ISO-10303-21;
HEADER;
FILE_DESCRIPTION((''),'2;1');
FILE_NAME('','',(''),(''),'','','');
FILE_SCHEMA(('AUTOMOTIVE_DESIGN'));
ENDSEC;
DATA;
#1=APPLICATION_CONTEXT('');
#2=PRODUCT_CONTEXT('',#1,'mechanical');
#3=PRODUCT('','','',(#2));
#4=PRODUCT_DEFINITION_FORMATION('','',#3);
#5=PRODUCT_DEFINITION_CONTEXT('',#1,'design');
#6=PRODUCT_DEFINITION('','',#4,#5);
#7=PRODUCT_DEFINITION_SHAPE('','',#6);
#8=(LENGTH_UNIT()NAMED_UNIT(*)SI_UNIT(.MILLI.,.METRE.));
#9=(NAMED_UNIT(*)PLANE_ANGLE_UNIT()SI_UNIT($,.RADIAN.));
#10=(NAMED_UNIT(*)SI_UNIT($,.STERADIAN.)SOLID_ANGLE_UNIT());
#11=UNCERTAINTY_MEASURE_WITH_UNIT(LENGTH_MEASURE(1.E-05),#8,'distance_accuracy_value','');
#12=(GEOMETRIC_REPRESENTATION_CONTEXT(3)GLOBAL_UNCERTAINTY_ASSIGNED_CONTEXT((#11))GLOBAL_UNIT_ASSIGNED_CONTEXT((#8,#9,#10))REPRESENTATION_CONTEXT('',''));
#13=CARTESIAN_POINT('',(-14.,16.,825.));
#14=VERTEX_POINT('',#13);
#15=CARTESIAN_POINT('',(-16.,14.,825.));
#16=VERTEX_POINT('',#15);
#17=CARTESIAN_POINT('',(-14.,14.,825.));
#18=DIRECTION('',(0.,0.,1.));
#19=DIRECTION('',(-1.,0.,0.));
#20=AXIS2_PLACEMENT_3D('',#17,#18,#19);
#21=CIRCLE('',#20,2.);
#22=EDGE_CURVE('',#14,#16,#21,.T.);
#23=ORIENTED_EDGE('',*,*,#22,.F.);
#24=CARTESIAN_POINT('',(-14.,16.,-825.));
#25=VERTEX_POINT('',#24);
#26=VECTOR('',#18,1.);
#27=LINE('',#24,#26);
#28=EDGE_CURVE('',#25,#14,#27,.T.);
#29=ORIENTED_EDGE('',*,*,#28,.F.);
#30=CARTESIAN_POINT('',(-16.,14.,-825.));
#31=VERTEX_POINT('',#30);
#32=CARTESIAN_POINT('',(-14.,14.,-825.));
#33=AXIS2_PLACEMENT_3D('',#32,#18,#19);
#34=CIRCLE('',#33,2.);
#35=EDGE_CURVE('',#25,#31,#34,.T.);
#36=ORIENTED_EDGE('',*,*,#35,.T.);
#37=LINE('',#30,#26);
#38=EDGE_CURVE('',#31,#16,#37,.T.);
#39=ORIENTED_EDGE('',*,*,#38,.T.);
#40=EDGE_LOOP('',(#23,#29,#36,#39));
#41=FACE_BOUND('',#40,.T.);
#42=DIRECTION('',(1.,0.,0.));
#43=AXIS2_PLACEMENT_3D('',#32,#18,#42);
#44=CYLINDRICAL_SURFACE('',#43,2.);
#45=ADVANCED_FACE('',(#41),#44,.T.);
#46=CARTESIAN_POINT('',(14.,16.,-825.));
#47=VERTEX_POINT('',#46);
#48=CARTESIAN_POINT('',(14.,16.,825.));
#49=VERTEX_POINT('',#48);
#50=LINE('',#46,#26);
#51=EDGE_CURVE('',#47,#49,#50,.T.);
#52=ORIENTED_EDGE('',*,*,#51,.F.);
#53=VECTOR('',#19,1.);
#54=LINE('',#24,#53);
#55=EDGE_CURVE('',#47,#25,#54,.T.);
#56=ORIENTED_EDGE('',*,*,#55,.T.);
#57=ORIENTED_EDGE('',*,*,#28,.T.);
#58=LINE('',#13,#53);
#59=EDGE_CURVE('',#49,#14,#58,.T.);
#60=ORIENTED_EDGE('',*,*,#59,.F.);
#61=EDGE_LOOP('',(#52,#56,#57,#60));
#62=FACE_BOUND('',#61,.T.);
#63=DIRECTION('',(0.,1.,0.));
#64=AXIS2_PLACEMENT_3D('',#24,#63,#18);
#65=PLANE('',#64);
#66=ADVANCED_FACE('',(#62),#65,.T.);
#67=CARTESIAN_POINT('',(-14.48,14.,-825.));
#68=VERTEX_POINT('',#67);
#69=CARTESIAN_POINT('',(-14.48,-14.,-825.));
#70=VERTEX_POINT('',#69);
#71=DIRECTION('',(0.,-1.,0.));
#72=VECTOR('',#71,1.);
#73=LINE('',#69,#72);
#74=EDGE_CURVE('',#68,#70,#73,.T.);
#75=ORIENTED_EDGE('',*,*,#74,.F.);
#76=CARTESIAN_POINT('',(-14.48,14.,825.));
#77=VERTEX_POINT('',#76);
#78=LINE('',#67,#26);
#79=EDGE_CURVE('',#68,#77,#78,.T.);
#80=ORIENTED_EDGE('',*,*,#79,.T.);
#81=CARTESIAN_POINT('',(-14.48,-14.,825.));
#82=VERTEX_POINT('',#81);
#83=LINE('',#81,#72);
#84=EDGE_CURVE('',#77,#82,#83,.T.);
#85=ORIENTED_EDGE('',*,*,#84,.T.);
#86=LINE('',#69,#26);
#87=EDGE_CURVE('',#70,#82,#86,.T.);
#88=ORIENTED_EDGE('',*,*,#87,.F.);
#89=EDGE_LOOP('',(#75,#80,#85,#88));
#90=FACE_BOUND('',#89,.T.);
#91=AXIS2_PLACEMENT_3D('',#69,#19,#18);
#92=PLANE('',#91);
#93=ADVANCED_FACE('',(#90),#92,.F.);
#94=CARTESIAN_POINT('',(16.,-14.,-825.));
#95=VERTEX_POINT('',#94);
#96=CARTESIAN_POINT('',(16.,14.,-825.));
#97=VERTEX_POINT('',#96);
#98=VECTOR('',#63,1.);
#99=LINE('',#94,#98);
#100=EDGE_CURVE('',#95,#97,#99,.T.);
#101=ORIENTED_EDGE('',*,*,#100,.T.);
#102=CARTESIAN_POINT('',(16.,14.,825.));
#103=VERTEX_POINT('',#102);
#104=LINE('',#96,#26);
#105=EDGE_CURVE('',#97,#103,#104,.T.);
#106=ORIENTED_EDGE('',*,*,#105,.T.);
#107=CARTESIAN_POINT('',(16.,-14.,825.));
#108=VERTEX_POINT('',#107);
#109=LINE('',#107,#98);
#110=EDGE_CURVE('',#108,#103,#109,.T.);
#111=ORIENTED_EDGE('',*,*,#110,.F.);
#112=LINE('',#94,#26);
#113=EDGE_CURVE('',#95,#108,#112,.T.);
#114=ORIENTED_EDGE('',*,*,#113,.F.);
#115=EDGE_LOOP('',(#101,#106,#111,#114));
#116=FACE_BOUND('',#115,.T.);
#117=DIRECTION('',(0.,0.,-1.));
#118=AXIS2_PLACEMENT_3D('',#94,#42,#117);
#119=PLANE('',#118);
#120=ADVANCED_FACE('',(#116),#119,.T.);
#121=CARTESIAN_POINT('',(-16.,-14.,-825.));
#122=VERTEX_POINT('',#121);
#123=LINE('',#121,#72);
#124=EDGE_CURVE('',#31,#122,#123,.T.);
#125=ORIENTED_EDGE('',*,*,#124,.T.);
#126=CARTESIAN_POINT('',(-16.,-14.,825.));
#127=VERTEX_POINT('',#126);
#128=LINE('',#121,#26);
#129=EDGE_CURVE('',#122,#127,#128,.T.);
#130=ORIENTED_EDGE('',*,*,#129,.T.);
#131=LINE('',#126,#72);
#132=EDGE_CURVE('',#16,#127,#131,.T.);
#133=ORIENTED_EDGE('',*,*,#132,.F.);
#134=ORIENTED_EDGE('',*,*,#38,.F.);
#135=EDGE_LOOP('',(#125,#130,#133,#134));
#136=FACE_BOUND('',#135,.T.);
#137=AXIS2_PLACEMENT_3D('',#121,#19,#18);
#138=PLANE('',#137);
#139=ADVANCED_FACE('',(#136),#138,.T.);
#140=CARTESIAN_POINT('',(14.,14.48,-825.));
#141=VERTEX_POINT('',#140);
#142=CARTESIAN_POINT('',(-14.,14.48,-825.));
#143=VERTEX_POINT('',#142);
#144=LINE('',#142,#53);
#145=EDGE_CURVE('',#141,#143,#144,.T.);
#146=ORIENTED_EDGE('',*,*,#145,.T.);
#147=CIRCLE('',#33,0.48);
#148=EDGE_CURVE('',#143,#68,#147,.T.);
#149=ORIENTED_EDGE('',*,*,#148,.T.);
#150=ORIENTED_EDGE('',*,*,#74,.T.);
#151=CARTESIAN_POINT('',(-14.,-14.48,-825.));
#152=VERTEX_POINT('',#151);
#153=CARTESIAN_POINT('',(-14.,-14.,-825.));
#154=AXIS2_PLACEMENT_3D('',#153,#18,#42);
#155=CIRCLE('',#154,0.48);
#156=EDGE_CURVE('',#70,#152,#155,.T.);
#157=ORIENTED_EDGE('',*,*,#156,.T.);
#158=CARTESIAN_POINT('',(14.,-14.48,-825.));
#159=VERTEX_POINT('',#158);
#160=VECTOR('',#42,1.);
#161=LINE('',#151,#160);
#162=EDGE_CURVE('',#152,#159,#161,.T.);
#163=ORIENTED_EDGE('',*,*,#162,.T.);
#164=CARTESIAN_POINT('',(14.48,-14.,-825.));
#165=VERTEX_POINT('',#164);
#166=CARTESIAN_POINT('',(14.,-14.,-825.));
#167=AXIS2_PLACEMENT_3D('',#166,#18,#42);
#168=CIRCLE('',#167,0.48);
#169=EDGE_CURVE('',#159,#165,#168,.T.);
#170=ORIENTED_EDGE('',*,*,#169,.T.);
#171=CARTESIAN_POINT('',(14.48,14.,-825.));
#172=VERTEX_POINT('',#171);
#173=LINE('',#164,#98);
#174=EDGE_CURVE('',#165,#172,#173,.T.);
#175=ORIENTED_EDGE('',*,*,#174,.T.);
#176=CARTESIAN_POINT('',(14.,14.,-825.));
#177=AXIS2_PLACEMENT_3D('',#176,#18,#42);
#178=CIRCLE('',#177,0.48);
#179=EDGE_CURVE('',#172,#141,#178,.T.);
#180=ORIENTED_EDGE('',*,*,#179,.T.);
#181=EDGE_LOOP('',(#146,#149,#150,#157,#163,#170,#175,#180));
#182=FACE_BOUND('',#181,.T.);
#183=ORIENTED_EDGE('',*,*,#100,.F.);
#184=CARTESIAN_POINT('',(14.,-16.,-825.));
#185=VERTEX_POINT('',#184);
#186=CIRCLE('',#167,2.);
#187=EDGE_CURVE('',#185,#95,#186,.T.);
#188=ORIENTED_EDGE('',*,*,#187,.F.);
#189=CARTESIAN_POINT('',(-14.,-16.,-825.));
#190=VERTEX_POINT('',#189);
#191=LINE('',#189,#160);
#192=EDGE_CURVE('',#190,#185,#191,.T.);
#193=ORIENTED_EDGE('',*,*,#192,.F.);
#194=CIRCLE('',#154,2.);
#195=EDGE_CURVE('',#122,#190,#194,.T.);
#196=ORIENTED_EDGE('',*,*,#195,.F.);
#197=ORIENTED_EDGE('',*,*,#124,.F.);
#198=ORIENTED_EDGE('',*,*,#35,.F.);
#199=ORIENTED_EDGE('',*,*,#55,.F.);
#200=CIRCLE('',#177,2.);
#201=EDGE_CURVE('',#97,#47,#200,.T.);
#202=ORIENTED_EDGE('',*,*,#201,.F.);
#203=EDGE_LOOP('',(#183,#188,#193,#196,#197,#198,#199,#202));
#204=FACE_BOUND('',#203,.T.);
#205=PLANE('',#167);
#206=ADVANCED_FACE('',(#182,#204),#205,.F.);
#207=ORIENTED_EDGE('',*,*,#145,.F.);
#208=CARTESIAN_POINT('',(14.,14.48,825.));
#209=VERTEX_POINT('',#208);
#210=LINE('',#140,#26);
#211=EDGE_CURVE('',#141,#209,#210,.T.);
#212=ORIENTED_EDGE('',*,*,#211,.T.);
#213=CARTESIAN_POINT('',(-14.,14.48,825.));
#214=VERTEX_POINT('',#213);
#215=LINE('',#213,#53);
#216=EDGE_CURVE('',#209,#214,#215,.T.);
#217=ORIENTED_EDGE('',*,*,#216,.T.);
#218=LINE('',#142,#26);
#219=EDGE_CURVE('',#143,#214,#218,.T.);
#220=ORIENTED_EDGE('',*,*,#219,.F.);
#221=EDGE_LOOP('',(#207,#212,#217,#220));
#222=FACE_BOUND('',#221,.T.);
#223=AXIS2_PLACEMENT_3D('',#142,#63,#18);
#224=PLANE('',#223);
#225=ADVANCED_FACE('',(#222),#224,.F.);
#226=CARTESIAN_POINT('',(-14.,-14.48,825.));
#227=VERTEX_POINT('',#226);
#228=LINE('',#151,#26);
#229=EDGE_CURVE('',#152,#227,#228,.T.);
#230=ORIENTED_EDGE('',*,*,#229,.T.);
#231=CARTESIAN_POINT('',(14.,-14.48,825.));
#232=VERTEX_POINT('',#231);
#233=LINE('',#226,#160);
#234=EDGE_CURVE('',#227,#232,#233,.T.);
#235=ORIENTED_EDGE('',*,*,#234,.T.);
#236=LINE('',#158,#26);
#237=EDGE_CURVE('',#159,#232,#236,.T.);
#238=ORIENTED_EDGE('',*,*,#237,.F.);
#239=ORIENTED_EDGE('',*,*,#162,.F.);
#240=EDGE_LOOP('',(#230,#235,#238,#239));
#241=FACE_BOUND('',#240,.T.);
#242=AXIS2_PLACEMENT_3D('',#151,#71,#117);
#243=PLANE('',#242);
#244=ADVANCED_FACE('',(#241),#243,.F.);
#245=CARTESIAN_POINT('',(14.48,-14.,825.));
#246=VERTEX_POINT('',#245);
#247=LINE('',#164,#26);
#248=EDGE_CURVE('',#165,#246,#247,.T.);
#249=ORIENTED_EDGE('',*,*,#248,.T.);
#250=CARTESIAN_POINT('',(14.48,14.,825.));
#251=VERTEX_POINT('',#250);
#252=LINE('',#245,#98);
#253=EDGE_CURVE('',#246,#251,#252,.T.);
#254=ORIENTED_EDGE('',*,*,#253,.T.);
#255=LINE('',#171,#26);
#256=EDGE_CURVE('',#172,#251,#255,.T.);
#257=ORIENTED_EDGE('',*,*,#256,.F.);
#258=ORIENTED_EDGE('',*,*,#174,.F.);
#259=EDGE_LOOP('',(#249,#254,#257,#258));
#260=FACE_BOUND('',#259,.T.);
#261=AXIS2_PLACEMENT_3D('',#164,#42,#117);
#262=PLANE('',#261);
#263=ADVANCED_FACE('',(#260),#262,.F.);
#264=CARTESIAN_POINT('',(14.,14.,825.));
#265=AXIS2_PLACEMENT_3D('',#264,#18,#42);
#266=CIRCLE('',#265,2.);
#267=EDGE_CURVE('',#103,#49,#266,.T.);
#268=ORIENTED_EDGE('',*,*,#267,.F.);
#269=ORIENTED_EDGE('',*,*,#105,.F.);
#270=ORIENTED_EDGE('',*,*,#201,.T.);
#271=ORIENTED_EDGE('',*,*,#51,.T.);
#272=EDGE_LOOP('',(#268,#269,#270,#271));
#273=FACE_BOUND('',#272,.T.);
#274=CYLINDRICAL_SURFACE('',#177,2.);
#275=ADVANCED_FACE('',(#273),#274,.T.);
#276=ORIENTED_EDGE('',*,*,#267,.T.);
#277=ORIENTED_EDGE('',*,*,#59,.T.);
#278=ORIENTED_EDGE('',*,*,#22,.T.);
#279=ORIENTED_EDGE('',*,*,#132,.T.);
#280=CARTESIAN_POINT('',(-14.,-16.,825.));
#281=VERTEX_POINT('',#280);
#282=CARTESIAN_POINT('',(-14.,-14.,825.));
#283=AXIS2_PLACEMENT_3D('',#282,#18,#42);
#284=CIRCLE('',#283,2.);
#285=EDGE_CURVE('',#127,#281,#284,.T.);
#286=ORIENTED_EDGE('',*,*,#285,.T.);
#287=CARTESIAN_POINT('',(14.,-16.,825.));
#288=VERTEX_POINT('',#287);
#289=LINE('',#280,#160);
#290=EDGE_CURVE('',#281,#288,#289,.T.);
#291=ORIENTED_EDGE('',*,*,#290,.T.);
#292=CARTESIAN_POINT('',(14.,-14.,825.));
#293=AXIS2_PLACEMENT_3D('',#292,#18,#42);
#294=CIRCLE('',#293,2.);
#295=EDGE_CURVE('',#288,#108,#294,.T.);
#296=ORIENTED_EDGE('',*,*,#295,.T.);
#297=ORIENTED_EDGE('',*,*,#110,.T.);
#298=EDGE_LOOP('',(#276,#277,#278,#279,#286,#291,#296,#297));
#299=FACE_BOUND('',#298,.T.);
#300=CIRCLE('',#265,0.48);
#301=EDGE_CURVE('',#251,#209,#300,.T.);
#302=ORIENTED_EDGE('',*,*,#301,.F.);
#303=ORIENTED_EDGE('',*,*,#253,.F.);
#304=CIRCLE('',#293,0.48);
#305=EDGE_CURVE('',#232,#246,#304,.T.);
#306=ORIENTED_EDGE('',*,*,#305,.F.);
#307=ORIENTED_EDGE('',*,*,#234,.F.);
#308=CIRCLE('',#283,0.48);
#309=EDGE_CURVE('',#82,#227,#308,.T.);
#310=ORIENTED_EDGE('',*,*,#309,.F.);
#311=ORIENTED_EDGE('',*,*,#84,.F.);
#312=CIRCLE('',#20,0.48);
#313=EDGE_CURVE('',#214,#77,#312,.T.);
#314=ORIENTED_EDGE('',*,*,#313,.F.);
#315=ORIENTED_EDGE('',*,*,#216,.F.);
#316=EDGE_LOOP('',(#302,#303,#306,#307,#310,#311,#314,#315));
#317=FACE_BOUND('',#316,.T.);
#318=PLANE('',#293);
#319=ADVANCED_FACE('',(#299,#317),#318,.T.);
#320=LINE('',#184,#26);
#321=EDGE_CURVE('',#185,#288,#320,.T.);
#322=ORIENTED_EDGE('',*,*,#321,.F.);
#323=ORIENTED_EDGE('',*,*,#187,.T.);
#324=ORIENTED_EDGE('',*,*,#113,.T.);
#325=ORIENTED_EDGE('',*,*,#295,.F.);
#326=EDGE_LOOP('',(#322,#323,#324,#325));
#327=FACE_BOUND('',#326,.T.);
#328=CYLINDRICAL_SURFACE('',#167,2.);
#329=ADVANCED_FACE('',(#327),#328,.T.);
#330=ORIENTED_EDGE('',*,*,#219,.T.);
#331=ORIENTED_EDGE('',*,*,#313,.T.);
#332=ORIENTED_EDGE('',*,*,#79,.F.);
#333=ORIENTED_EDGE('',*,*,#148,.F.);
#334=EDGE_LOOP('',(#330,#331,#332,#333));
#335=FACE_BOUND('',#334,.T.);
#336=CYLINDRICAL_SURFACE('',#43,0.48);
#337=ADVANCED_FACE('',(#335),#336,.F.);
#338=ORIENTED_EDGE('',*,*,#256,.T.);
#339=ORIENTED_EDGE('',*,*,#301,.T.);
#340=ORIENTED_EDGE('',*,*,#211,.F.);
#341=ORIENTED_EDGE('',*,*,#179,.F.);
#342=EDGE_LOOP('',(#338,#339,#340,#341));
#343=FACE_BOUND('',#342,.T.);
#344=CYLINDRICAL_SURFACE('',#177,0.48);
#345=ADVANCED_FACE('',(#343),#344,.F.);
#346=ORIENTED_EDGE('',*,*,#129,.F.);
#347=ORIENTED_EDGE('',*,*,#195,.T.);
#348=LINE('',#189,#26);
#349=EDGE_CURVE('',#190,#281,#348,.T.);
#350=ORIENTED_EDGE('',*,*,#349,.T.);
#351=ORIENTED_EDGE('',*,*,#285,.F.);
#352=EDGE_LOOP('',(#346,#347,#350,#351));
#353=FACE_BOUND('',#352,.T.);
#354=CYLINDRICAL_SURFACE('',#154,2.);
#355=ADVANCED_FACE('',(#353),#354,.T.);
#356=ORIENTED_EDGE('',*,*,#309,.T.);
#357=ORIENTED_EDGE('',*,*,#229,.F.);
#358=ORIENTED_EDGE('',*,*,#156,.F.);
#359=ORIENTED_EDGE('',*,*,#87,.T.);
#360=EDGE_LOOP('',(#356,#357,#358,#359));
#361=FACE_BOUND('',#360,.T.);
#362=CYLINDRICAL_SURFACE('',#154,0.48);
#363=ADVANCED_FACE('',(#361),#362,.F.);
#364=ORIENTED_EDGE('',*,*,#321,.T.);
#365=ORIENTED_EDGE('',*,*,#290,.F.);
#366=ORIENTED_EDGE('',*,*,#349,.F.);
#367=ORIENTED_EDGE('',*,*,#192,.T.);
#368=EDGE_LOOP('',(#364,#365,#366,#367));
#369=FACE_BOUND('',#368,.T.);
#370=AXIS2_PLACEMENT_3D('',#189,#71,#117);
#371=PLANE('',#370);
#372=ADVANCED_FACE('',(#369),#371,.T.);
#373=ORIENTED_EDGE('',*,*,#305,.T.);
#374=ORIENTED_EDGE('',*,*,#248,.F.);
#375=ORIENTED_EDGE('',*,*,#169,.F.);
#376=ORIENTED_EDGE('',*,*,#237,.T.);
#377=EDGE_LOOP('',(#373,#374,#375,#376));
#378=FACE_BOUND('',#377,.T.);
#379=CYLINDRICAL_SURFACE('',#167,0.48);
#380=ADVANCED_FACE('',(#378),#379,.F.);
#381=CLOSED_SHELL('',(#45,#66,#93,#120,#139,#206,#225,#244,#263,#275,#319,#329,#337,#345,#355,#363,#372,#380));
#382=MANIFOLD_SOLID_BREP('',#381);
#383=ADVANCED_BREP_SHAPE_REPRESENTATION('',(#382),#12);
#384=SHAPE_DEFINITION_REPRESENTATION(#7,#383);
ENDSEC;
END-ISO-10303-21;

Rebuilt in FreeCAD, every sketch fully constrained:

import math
import FreeCAD as App
import Part
import Sketcher
Q = App.Units.Quantity

doc = App.newDocument("Part")
body = doc.addObject("PartDesign::Body", "Body")

# Sketch on XY plane
sketch1 = body.newObject("Sketcher::SketchObject", "Sketch")
sketch1.AttachmentSupport = (doc.getObject("XY_Plane"), [""])
sketch1.MapMode = "FlatFace"
sketch1.addGeometry([
    Part.LineSegment(App.Vector(-14, -16, 0), App.Vector(14, -16, 0)),  # 0
    Part.ArcOfCircle(Part.Circle(App.Vector(14, -14, 0), App.Vector(0, 0, 1), 2), math.radians(-90), math.radians(0)),  # 1
    Part.LineSegment(App.Vector(16, -14, 0), App.Vector(16, 14, 0)),  # 2
    Part.ArcOfCircle(Part.Circle(App.Vector(14, 14, 0), App.Vector(0, 0, 1), 2), math.radians(0), math.radians(90)),  # 3
    Part.LineSegment(App.Vector(14, 16, 0), App.Vector(-14, 16, 0)),  # 4
    Part.ArcOfCircle(Part.Circle(App.Vector(-14, 14, 0), App.Vector(0, 0, 1), 2), math.radians(90), math.radians(180)),  # 5
    Part.LineSegment(App.Vector(-16, 14, 0), App.Vector(-16, -14, 0)),  # 6
    Part.ArcOfCircle(Part.Circle(App.Vector(-14, -14, 0), App.Vector(0, 0, 1), 2), math.radians(-180), math.radians(-90)),  # 7
    Part.ArcOfCircle(Part.Circle(App.Vector(-14, 14, 0), App.Vector(0, 0, 1), 0.48), math.radians(90), math.radians(180)),  # 8
    Part.LineSegment(App.Vector(-14, 14.48, 0), App.Vector(14, 14.48, 0)),  # 9
    Part.ArcOfCircle(Part.Circle(App.Vector(14, 14, 0), App.Vector(0, 0, 1), 0.48), math.radians(0), math.radians(90)),  # 10
    Part.LineSegment(App.Vector(14.48, 14, 0), App.Vector(14.48, -14, 0)),  # 11
    Part.ArcOfCircle(Part.Circle(App.Vector(14, -14, 0), App.Vector(0, 0, 1), 0.48), math.radians(-90), math.radians(0)),  # 12
    Part.LineSegment(App.Vector(14, -14.48, 0), App.Vector(-14, -14.48, 0)),  # 13
    Part.ArcOfCircle(Part.Circle(App.Vector(-14, -14, 0), App.Vector(0, 0, 1), 0.48), math.radians(180), math.radians(270)),  # 14
    Part.LineSegment(App.Vector(-14.48, -14, 0), App.Vector(-14.48, 14, 0)),  # 15
], False)
sketch1.addConstraint([
    Sketcher.Constraint("Tangent", 0, 2, 1, 1),
    Sketcher.Constraint("Tangent", 1, 2, 2, 1),
    Sketcher.Constraint("Tangent", 2, 2, 3, 1),
    Sketcher.Constraint("Tangent", 3, 2, 4, 1),
    Sketcher.Constraint("Tangent", 4, 2, 5, 1),
    Sketcher.Constraint("Tangent", 5, 2, 6, 1),
    Sketcher.Constraint("Tangent", 6, 2, 7, 1),
    Sketcher.Constraint("Tangent", 7, 2, 0, 1),
    Sketcher.Constraint("Tangent", 8, 1, 9, 1),
    Sketcher.Constraint("Tangent", 9, 2, 10, 2),
    Sketcher.Constraint("Tangent", 10, 1, 11, 1),
    Sketcher.Constraint("Tangent", 11, 2, 12, 2),
    Sketcher.Constraint("Tangent", 12, 1, 13, 1),
    Sketcher.Constraint("Tangent", 13, 2, 14, 2),
    Sketcher.Constraint("Tangent", 14, 1, 15, 1),
    Sketcher.Constraint("Tangent", 15, 2, 8, 2),
    Sketcher.Constraint("Horizontal", 0),
    Sketcher.Constraint("Vertical", 2),
    Sketcher.Constraint("Horizontal", 4),
    Sketcher.Constraint("Vertical", 6),
    Sketcher.Constraint("Horizontal", 9),
    Sketcher.Constraint("Vertical", 11),
    Sketcher.Constraint("Horizontal", 13),
    Sketcher.Constraint("Vertical", 15),
    Sketcher.Constraint("Coincident", 8, 3, 5, 3),
    Sketcher.Constraint("Coincident", 10, 3, 3, 3),
    Sketcher.Constraint("Coincident", 12, 3, 1, 3),
    Sketcher.Constraint("Equal", 1, 3),
    Sketcher.Constraint("Equal", 3, 5),
    Sketcher.Constraint("Equal", 5, 7),
    Sketcher.Constraint("Equal", 12, 14),
    Sketcher.Constraint("Symmetric", 1, 3, 5, 3, -1, 1),
    Sketcher.Constraint("Equal", 13, 2),
    Sketcher.Constraint("Radius", 1, Q("2 mm")),
    Sketcher.Constraint("DistanceX", 0, 1, 0, 2, Q("28 mm")),
    Sketcher.Constraint("Radius", 8, Q("0.48 mm")),
])
pad1 = body.newObject("PartDesign::Pad", "Pad")
pad1.Profile = sketch1
pad1.Type = "TwoLengths"
pad1.Length = 825
pad1.Length2 = 825

doc.recompute()
